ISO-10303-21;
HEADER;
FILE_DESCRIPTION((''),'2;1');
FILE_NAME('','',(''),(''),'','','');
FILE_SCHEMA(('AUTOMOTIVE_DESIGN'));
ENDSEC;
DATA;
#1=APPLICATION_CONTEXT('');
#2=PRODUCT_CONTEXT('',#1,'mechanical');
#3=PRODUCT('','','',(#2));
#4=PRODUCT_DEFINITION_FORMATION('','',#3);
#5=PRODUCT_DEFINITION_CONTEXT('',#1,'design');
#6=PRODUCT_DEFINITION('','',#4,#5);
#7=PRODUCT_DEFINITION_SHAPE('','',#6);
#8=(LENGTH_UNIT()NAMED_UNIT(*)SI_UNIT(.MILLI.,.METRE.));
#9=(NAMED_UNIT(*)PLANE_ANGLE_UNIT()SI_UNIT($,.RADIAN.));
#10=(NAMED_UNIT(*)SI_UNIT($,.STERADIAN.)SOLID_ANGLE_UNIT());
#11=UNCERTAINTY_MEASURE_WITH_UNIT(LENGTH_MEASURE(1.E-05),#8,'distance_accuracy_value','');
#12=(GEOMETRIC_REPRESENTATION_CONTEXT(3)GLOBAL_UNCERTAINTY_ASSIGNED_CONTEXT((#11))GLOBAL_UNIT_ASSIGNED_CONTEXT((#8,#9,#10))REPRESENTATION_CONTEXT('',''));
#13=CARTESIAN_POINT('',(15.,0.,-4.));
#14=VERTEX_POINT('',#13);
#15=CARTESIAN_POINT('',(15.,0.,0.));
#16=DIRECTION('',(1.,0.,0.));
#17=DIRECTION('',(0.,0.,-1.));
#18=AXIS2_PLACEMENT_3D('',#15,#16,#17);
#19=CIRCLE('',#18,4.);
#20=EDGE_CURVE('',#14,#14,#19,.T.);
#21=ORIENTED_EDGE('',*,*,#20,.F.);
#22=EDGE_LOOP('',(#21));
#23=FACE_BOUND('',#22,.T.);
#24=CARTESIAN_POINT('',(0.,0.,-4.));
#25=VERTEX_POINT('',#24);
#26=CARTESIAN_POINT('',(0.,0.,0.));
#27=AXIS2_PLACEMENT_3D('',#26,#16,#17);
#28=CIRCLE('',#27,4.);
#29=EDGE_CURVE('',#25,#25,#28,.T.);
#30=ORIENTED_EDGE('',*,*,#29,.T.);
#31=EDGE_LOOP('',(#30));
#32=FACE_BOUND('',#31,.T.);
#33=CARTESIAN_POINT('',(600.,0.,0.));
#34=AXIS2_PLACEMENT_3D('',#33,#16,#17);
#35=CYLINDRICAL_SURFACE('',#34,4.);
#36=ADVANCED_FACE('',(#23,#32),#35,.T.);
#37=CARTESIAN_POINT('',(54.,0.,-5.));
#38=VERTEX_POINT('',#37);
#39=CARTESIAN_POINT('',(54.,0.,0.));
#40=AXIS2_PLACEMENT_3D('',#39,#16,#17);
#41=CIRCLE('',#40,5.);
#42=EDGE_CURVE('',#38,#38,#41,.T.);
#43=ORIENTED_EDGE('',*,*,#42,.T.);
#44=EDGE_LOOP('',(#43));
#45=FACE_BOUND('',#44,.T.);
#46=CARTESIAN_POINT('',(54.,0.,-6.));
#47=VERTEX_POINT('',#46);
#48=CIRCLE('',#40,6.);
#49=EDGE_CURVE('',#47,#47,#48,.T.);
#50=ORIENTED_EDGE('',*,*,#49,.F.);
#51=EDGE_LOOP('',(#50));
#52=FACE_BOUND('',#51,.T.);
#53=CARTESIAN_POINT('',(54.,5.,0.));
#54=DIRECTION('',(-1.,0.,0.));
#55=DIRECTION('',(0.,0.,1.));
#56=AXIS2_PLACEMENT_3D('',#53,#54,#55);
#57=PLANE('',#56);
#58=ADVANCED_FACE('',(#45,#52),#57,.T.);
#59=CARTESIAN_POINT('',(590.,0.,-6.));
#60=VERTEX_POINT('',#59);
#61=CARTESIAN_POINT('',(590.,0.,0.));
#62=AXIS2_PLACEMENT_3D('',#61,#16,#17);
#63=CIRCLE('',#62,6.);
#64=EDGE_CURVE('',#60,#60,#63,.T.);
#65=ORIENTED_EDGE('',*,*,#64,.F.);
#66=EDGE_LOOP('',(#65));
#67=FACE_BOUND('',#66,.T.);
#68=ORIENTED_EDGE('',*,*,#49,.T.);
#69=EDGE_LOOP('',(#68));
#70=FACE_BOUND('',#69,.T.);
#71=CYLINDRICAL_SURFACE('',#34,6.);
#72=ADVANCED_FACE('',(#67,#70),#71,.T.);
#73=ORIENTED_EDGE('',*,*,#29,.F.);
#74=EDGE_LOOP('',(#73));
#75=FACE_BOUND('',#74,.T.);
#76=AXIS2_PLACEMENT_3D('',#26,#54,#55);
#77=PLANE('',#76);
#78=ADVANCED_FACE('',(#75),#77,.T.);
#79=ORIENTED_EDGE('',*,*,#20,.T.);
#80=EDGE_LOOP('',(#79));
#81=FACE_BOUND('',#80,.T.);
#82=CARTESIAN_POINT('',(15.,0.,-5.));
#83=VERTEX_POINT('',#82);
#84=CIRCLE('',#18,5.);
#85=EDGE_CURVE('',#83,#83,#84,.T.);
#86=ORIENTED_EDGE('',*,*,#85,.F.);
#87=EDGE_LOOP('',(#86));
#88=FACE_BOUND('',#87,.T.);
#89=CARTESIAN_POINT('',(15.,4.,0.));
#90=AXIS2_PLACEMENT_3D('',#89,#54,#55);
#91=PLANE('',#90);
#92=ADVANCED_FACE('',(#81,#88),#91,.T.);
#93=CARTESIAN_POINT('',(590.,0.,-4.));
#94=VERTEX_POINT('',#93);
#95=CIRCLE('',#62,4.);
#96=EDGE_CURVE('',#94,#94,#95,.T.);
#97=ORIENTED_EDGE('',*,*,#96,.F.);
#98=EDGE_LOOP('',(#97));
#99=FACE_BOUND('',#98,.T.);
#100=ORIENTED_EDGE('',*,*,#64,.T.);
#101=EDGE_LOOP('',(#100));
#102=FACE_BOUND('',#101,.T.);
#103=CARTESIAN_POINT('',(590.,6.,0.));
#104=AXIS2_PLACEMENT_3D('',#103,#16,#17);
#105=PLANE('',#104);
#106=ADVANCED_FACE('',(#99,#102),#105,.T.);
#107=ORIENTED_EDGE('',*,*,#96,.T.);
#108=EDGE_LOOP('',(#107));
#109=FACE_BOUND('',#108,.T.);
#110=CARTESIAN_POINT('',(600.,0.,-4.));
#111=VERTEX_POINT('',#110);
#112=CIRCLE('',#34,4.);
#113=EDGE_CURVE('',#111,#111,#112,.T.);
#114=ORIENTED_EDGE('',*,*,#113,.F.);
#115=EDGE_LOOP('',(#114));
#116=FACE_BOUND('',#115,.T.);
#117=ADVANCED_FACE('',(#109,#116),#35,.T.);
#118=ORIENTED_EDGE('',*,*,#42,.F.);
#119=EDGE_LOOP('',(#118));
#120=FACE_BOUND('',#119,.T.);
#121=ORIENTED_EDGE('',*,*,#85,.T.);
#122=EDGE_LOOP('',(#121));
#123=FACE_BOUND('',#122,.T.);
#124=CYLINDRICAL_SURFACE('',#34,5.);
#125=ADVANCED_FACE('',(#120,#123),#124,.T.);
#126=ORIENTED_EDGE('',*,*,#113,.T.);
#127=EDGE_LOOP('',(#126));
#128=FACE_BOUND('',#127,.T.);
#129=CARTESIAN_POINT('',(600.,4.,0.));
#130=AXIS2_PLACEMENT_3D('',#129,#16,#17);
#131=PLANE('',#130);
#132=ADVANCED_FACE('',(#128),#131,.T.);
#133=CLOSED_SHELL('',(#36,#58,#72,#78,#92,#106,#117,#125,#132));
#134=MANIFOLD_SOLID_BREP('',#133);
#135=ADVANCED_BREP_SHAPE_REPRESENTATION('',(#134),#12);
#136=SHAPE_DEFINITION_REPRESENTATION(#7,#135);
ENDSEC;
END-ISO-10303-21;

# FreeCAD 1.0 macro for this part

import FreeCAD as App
import Part
import Sketcher
from FreeCAD import Vector


def add_polygon(sketch, points):
    """Adds a closed chain of lines whose ends are joined by coincident constraints."""
    first, n = sketch.GeometryCount, len(points)
    for a, b in zip(points, points[1:] + points[:1]):
        sketch.addGeometry(Part.LineSegment(App.Vector(*a, 0), App.Vector(*b, 0)), False)
    for i in range(n):
        sketch.addConstraint(Sketcher.Constraint("Coincident", first + i, 2, first + (i + 1) % n, 1))

doc = App.newDocument("Part")
body = doc.addObject("PartDesign::Body", "Body")

# Sketch on XY plane
sketch1 = body.newObject("Sketcher::SketchObject", "Sketch")
sketch1.AttachmentSupport = (doc.getObject("XY_Plane"), [""])
sketch1.MapMode = "FlatFace"
add_polygon(sketch1, [(0, 4), (0, 0), (600, 0), (600, 4), (590, 4), (590, 6), (54, 6), (54, 5), (15, 5), (15, 4)])  # lines 0-9
sketch1.addConstraint(Sketcher.Constraint("Vertical", 0))
sketch1.addConstraint(Sketcher.Constraint("Horizontal", 1))
sketch1.addConstraint(Sketcher.Constraint("Vertical", 2))
sketch1.addConstraint(Sketcher.Constraint("Horizontal", 3))
sketch1.addConstraint(Sketcher.Constraint("Vertical", 4))
sketch1.addConstraint(Sketcher.Constraint("Horizontal", 5))
sketch1.addConstraint(Sketcher.Constraint("Vertical", 6))
sketch1.addConstraint(Sketcher.Constraint("Horizontal", 7))
sketch1.addConstraint(Sketcher.Constraint("Vertical", 8))
sketch1.addConstraint(Sketcher.Constraint("Horizontal", 9))
sketch1.addConstraint(Sketcher.Constraint("Coincident", 0, 2, -1, 1))
sketch1.addConstraint(Sketcher.Constraint("Horizontal", 3, 2, 8, 2))
sketch1.addConstraint(Sketcher.Constraint("Equal", 6, 8))
sketch1.addConstraint(Sketcher.Constraint("DistanceX", 1, 1, 1, 2, 600.0))
sketch1.addConstraint(Sketcher.Constraint("DistanceX", 3, 2, 3, 1, 10.0))
sketch1.addConstraint(Sketcher.Constraint("DistanceX", 5, 2, 5, 1, 536.0))
sketch1.addConstraint(Sketcher.Constraint("DistanceX", 7, 2, 7, 1, 39.0))
sketch1.addConstraint(Sketcher.Constraint("DistanceY", 0, 2, 0, 1, 4.0))
sketch1.addConstraint(Sketcher.Constraint("DistanceY", 4, 1, 4, 2, 2.0))
revolution = body.newObject("PartDesign::Revolution", "Revolution")
revolution.Profile = sketch1
revolution.ReferenceAxis = (sketch1, ["H_Axis"])
revolution.Angle = 360

doc.recompute()
